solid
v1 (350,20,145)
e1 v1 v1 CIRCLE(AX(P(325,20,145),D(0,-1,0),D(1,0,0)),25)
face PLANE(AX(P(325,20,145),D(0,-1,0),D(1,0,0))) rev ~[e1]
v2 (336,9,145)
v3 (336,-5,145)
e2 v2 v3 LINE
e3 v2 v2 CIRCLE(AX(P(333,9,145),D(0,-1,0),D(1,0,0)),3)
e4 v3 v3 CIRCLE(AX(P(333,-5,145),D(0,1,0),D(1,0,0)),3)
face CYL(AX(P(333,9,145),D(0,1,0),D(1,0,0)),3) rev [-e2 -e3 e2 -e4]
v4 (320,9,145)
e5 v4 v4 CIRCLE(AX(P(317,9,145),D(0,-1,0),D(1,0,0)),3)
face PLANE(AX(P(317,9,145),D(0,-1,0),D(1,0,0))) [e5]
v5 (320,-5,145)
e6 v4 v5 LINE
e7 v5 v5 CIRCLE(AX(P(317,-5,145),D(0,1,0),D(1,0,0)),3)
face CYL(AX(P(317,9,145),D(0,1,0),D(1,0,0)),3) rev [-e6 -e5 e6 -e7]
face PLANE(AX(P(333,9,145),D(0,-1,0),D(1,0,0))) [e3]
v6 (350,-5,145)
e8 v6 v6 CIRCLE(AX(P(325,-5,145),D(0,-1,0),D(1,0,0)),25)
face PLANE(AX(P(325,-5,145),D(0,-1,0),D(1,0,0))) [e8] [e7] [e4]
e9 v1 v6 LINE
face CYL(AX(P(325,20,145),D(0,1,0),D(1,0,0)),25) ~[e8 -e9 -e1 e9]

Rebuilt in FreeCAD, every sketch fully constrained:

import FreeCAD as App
import Part
import Sketcher
from FreeCAD import Vector
Q = App.Units.Quantity

doc = App.newDocument("Part")
body = doc.addObject("PartDesign::Body", "Body")

# Sketch on XY plane
sketch1 = body.newObject("Sketcher::SketchObject", "Sketch")
sketch1.AttachmentSupport = (doc.getObject("XY_Plane"), [""])
sketch1.MapMode = "FlatFace"
sketch1.addGeometry(Part.Circle(Vector(0, 0, 0), Vector(0, 0, 1), 3), False)
sketch1.addConstraint([
    Sketcher.Constraint("Coincident", 0, 3, -1, 1),
    Sketcher.Constraint("Diameter", 0, Q("6 mm")),
])
pad1 = body.newObject("PartDesign::Pad", "Pad")
pad1.Profile = sketch1
pad1.Length = 15
body2 = doc.addObject("PartDesign::Body", "Body001")
doc.recompute()

body.Placement = App.Placement(Vector(0, 0, 0), App.Rotation(Vector(1, 0, 0), 90))
boolean = body2.newObject("PartDesign::Boolean", "Boolean")
boolean.Type = "Fuse"
boolean.addObjects([body])
body3 = doc.addObject("PartDesign::Body", "Body002")
doc.recompute()

body2.Placement = App.Placement(Vector(258, 9, 130), App.Rotation(Vector(0, 0, 1), 0))
boolean2 = body3.newObject("PartDesign::Boolean", "Boolean001")
boolean2.Type = "Fuse"
boolean2.addObjects([body2])
body4 = doc.addObject("PartDesign::Body", "Body003")

# Sketch on XY plane
sketch2 = body4.newObject("Sketcher::SketchObject", "Sketch001")
sketch2.AttachmentSupport = (doc.getObject("XY_Plane003"), [""])
sketch2.MapMode = "FlatFace"
sketch2.addGeometry(Part.Circle(Vector(0, 0, 0), Vector(0, 0, 1), 3), False)
sketch2.addConstraint([
    Sketcher.Constraint("Coincident", 0, 3, -1, 1),
    Sketcher.Constraint("Diameter", 0, Q("6 mm")),
])
pad2 = body4.newObject("PartDesign::Pad", "Pad001")
pad2.Profile = sketch2
pad2.Length = 15
body5 = doc.addObject("PartDesign::Body", "Body004")
doc.recompute()

body4.Placement = App.Placement(Vector(0, 0, 0), App.Rotation(Vector(1, 0, 0), 90))
boolean3 = body5.newObject("PartDesign::Boolean", "Boolean002")
boolean3.Type = "Fuse"
boolean3.addObjects([body4])
body6 = doc.addObject("PartDesign::Body", "Body005")
doc.recompute()

body5.Placement = App.Placement(Vector(242, 9, 130), App.Rotation(Vector(0, 0, 1), 0))
boolean4 = body6.newObject("PartDesign::Boolean", "Boolean003")
boolean4.Type = "Fuse"
boolean4.addObjects([body5])
body7 = doc.addObject("PartDesign::Body", "Body006")

# Sketch on XY plane
sketch3 = body7.newObject("Sketcher::SketchObject", "Sketch002")
sketch3.AttachmentSupport = (doc.getObject("XY_Plane006"), [""])
sketch3.MapMode = "FlatFace"
sketch3.addGeometry(Part.Circle(Vector(0, 0, 0), Vector(0, 0, 1), 25), False)
sketch3.addConstraint([
    Sketcher.Constraint("Coincident", 0, 3, -1, 1),
    Sketcher.Constraint("Diameter", 0, Q("50 mm")),
])
pad3 = body7.newObject("PartDesign::Pad", "Pad002")
pad3.Profile = sketch3
pad3.Length = 25
body8 = doc.addObject("PartDesign::Body", "Body007")
doc.recompute()

body7.Placement = App.Placement(Vector(0, 0, 0), App.Rotation(Vector(1, 0, 0), 90))
boolean5 = body8.newObject("PartDesign::Boolean", "Boolean004")
boolean5.Type = "Fuse"
boolean5.addObjects([body7])
body9 = doc.addObject("PartDesign::Body", "Body008")
doc.recompute()

body8.Placement = App.Placement(Vector(250, 20, 130), App.Rotation(Vector(0, 0, 1), 0))
boolean6 = body9.newObject("PartDesign::Boolean", "Boolean005")
boolean6.Type = "Fuse"
boolean6.addObjects([body8])
doc.recompute()

boolean7 = body9.newObject("PartDesign::Boolean", "Boolean006")
boolean7.Type = "Cut"
boolean7.addObjects([body6])
doc.recompute()

boolean8 = body9.newObject("PartDesign::Boolean", "Boolean007")
boolean8.Type = "Cut"
boolean8.addObjects([body3])
body10 = doc.addObject("PartDesign::Body", "Body009")
doc.recompute()

body9.Placement = App.Placement(Vector(75, 0, 15), App.Rotation(Vector(0, 0, 1), 0))
boolean9 = body10.newObject("PartDesign::Boolean", "Boolean008")
boolean9.Type = "Fuse"
boolean9.addObjects([body9])

doc.recompute()
